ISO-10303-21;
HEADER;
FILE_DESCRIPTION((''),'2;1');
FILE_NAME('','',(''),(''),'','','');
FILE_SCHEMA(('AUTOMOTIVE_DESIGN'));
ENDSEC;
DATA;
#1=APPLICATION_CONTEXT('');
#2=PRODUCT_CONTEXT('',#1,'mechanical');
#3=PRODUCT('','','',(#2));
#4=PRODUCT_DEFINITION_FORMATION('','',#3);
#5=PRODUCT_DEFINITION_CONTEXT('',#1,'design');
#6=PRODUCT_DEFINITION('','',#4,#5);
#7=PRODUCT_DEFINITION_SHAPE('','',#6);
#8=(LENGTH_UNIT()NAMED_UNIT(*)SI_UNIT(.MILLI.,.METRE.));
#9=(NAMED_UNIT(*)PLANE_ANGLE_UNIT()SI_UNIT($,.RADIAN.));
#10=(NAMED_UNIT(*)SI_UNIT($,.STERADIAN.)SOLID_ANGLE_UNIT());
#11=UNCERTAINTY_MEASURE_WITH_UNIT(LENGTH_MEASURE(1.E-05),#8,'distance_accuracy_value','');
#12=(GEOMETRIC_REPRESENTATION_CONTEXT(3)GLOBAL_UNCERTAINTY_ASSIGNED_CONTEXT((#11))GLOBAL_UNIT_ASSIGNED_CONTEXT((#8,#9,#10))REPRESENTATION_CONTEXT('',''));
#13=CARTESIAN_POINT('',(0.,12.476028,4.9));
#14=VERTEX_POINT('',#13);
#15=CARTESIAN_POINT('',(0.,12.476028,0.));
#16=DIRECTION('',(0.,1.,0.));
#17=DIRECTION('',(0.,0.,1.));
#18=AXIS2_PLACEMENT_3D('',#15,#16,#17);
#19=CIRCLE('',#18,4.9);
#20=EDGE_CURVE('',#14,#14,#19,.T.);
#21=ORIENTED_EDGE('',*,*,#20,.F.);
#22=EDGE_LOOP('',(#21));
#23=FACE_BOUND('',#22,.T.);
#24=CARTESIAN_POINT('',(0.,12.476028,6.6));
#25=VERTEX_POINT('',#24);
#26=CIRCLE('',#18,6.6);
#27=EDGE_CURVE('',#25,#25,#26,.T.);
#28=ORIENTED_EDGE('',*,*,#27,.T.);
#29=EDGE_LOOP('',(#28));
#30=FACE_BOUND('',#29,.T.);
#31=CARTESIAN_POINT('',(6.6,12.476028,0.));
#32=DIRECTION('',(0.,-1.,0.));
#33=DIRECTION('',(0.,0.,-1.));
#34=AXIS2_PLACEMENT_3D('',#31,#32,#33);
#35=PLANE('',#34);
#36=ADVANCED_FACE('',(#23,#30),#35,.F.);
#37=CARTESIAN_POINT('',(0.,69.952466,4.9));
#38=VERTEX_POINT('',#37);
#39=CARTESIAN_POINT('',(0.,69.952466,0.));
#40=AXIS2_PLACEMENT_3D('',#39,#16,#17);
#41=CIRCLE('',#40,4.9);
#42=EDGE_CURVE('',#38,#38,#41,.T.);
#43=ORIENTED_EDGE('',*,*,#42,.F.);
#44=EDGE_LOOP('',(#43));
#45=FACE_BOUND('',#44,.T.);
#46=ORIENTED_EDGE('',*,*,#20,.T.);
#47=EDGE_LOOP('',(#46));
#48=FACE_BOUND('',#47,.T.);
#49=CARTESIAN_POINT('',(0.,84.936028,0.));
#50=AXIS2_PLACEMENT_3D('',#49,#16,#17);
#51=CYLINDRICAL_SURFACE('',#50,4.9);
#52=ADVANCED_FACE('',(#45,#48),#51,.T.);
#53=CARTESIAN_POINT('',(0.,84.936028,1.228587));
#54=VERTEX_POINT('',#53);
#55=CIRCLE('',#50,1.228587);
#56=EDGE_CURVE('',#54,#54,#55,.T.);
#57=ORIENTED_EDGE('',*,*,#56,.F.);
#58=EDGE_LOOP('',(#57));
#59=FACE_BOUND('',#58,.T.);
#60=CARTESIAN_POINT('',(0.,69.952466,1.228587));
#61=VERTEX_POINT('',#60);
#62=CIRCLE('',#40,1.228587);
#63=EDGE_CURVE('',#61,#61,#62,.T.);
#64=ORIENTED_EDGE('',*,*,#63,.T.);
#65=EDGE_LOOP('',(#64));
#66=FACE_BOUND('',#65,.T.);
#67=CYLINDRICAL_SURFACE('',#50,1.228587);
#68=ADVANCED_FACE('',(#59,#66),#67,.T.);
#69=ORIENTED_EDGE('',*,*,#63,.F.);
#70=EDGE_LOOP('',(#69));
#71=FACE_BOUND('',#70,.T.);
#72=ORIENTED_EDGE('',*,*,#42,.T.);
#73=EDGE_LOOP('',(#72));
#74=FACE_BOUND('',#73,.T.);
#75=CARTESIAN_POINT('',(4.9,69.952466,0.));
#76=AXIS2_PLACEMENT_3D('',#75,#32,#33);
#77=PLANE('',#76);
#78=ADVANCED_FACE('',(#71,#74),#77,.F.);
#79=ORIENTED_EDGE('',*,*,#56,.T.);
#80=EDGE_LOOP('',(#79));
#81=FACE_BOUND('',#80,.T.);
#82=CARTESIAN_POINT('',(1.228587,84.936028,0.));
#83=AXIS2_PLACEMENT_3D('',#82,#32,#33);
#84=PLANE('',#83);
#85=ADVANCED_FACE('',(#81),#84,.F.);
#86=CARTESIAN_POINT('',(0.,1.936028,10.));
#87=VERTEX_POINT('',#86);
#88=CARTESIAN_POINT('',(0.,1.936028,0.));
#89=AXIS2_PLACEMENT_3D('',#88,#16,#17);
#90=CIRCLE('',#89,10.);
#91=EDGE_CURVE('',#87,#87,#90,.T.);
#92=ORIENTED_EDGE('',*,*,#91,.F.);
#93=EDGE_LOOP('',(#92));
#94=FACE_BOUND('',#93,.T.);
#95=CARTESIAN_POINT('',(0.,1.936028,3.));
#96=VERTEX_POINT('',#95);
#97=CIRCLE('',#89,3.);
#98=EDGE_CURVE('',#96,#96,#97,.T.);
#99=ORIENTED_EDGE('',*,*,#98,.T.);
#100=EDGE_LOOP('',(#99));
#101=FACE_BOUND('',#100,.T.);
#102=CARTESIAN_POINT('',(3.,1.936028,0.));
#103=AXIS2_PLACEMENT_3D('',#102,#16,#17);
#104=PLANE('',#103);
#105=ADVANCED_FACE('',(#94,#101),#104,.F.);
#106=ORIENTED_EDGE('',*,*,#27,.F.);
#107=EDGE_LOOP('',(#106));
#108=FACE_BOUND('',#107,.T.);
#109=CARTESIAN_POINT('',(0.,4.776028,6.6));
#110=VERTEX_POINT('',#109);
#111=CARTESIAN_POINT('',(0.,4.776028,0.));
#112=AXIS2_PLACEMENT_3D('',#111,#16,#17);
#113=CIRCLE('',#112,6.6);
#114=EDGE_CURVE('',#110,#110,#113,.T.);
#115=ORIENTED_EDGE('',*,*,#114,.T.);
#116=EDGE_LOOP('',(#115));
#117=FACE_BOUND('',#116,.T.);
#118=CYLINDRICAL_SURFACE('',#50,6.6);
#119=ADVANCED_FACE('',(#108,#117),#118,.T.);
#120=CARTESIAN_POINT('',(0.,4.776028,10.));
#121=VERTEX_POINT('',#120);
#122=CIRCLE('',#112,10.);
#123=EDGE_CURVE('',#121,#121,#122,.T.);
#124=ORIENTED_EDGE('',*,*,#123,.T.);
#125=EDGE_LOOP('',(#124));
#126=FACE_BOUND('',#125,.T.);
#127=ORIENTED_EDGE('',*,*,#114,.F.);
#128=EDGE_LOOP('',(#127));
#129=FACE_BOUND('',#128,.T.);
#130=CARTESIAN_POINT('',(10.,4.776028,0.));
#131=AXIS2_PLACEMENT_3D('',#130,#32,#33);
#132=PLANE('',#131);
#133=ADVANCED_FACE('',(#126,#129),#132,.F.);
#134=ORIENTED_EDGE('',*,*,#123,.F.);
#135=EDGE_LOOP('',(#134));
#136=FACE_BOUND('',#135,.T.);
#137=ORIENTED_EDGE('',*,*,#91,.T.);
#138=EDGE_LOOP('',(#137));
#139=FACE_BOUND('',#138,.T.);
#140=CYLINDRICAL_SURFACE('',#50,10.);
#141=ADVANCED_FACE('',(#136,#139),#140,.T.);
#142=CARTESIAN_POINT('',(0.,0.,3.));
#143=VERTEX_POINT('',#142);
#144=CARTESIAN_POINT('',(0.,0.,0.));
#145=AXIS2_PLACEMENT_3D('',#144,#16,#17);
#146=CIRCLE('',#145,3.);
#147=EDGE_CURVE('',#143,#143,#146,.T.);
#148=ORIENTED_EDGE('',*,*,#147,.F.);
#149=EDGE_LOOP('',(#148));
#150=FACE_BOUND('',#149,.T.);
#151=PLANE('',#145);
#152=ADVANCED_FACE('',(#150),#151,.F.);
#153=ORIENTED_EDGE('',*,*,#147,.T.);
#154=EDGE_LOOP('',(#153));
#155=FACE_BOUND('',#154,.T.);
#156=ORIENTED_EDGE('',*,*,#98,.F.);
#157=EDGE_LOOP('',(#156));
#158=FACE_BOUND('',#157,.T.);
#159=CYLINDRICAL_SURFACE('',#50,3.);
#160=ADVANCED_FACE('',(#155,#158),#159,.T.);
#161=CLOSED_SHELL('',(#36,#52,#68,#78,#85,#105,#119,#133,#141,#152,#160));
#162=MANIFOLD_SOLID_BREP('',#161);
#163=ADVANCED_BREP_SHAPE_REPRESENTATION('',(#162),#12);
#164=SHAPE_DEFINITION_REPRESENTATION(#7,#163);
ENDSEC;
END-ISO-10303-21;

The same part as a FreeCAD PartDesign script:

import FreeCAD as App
import Part
import Sketcher


def add_polygon(sketch, points):
    """Adds a closed chain of lines whose ends are joined by coincident constraints."""
    first, n = sketch.GeometryCount, len(points)
    for a, b in zip(points, points[1:] + points[:1]):
        sketch.addGeometry(Part.LineSegment(App.Vector(*a, 0), App.Vector(*b, 0)), False)
    for i in range(n):
        sketch.addConstraint(Sketcher.Constraint("Coincident", first + i, 2, first + (i + 1) % n, 1))

doc = App.newDocument("Part")
params = doc.addObject("Spreadsheet::Sheet", "Params")
for row, (alias, value) in enumerate([
    ("sketch1_width", "3 mm"),
    ("sketch1_width2", "7 mm"),
    ("sketch1_width3", "3.4 mm"),
    ("sketch1_width4", "1.7 mm"),
    ("sketch1_height", "7.7 mm"),
    ("revolution_angle", "360 deg"),
], start=1):
    params.set(f"A{row}", alias)
    params.set(f"B{row}", "=" + value)
    params.setAlias(f"B{row}", alias)

body = doc.addObject("PartDesign::Body", "Body")

sketch1 = doc.addObject("Sketcher::SketchObject", "Sketch")
body.addObject(sketch1)
sketch1.AttachmentSupport = (doc.XY_Plane, [""])
sketch1.MapMode = "FlatFace"
add_polygon(sketch1, [(0, 0), (3, 0), (3, 1.9), (10, 1.9), (10, 4.8), (6.6, 4.8), (6.6, 12.5), (4.9, 12.5), (4.9, 70), (1.2, 70), (1.2, 84.9), (0, 84.9)])
sketch1.addConstraint([
    Sketcher.Constraint("Horizontal", 0),
    Sketcher.Constraint("Vertical", 1),
    Sketcher.Constraint("Horizontal", 2),
    Sketcher.Constraint("Vertical", 3),
    Sketcher.Constraint("Horizontal", 4),
    Sketcher.Constraint("Vertical", 5),
    Sketcher.Constraint("Horizontal", 6),
    Sketcher.Constraint("Vertical", 7),
    Sketcher.Constraint("Horizontal", 8),
    Sketcher.Constraint("Vertical", 9),
    Sketcher.Constraint("Horizontal", 10),
    Sketcher.Constraint("Vertical", 11),
    Sketcher.Constraint("Coincident", 11, 2, -1, 1),
    Sketcher.Constraint("DistanceX", 0, 1, 0, 2, 3.0),
    Sketcher.Constraint("DistanceX", 2, 1, 2, 2, 7.0),
    Sketcher.Constraint("DistanceX", 4, 2, 4, 1, 3.4),
    Sketcher.Constraint("DistanceX", 6, 2, 6, 1, 1.7),
    Sketcher.Constraint("DistanceY", 5, 1, 5, 2, 7.7),
    Sketcher.Constraint("DistanceY", 3, 1, 3, 2, 2.84),
    Sketcher.Constraint("DistanceY", 6, 2, 9, 2, 72.46),
    Sketcher.Constraint("DistanceY", 7, 1, 7, 2, 57.476439),
    Sketcher.Constraint("DistanceX", 8, 2, 8, 1, 3.671413),
    Sketcher.Constraint("DistanceY", 1, 1, 1, 2, 1.936028),
])
sketch1.setExpression("Constraints[25]", "Params.sketch1_width")
sketch1.setExpression("Constraints[26]", "Params.sketch1_width2")
sketch1.setExpression("Constraints[27]", "Params.sketch1_width3")
sketch1.setExpression("Constraints[28]", "Params.sketch1_width4")
sketch1.setExpression("Constraints[29]", "Params.sketch1_height")
revolution = doc.addObject("PartDesign::Revolution", "Revolution")
body.addObject(revolution)
revolution.Profile = sketch1
revolution.ReferenceAxis = (sketch1, ["V_Axis"])
revolution.setExpression("Angle", "Params.revolution_angle")

doc.recompute()
